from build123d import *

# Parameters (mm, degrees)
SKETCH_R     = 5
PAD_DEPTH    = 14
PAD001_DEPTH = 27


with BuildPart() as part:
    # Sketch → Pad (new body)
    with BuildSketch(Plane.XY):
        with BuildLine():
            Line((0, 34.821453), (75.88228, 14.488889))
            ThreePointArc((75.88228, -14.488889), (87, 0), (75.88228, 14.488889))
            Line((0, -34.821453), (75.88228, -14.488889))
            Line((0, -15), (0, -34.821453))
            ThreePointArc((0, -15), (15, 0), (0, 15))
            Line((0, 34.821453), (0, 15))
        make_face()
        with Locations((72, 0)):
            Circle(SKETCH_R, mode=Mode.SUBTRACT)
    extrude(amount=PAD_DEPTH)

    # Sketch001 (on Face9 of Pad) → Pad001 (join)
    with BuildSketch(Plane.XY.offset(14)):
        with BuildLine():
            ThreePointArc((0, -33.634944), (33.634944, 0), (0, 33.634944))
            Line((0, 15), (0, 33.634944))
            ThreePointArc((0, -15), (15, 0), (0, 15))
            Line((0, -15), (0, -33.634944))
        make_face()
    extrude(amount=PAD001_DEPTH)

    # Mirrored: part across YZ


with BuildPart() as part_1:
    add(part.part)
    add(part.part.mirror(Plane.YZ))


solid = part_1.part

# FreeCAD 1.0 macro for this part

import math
import FreeCAD as App
import Part
import Sketcher
from FreeCAD import Vector

doc = App.newDocument("Part")
params = doc.addObject("Spreadsheet::Sheet", "Params")
for row, (alias, value) in enumerate([
    ("sketch1_diameter", "10 mm"),
    ("sketch1_radius", "15 mm"),
    ("pad1_length", "14 mm"),
    ("sketch2_radius", "15 mm"),
    ("pad2_length", "27 mm"),
], start=1):
    params.set(f"A{row}", alias)
    params.set(f"B{row}", "=" + value)
    params.setAlias(f"B{row}", alias)

body = doc.addObject("PartDesign::Body", "Body")

sketch1 = body.newObject("Sketcher::SketchObject", "Sketch")
sketch1.AttachmentSupport = (doc.getObject("XY_Plane"), [""])
sketch1.MapMode = "FlatFace"
sketch1.addGeometry(Part.LineSegment(Vector(76, 14, 0), Vector(0, 35, 0)), False)
sketch1.addGeometry(Part.LineSegment(Vector(0, 35, 0), Vector(0, 15, 0)), False)
sketch1.addGeometry(Part.ArcOfCircle(Part.Circle(Vector(0, 0, 0), Vector(0, 0, 1), 15), math.radians(-90), math.radians(90)), False)
sketch1.addGeometry(Part.LineSegment(Vector(0, -15, 0), Vector(0, -35, 0)), False)
sketch1.addGeometry(Part.LineSegment(Vector(0, -35, 0), Vector(76, -14, 0)), False)
sketch1.addGeometry(Part.ArcOfCircle(Part.Circle(Vector(72, 0, 0), Vector(0, 0, 1), 15), math.radians(-75), math.radians(75)), False)
sketch1.addGeometry(Part.Circle(Vector(72, 0, 0), Vector(0, 0, 1), 5), False)
sketch1.addConstraint(Sketcher.Constraint("Coincident", 0, 2, 1, 1))
sketch1.addConstraint(Sketcher.Constraint("Coincident", 1, 2, 2, 2))
sketch1.addConstraint(Sketcher.Constraint("Coincident", 2, 1, 3, 1))
sketch1.addConstraint(Sketcher.Constraint("Coincident", 3, 2, 4, 1))
sketch1.addConstraint(Sketcher.Constraint("Tangent", 4, 2, 5, 1))
sketch1.addConstraint(Sketcher.Constraint("Tangent", 5, 2, 0, 1))
sketch1.addConstraint(Sketcher.Constraint("Vertical", 1))
sketch1.addConstraint(Sketcher.Constraint("Vertical", 3))
sketch1.addConstraint(Sketcher.Constraint("Coincident", 2, 3, -1, 1))
sketch1.addConstraint(Sketcher.Constraint("Coincident", 6, 3, 5, 3))
sketch1.addConstraint(Sketcher.Constraint("Equal", 2, 5))
sketch1.addConstraint(Sketcher.Constraint("Symmetric", 0, 2, 3, 2, -1, 1))
sketch1.addConstraint(Sketcher.Constraint("Symmetric", 4, 2, 5, 2, -1))
sketch1.addConstraint(Sketcher.Constraint("Diameter", 6, 10.0))
sketch1.addConstraint(Sketcher.Constraint("Radius", 2, 15.0))
sketch1.addConstraint(Sketcher.Constraint("DistanceX", -1, 1, 5, 3, 72.0))
sketch1.addConstraint(Sketcher.Constraint("Distance", 0, 78.559109))
sketch1.setExpression("Constraints[13]", "Params.sketch1_diameter")
sketch1.setExpression("Constraints[14]", "Params.sketch1_radius")
pad1 = body.newObject("PartDesign::Pad", "Pad")
pad1.Profile = sketch1
pad1.setExpression("Length", "Params.pad1_length")

sketch2 = body.newObject("Sketcher::SketchObject", "Sketch001")
sketch2.AttachmentSupport = (doc.getObject("XY_Plane"), [""])
sketch2.MapMode = "FlatFace"
sketch2.AttachmentOffset = App.Placement(Vector(0, 0, 14), App.Rotation())
sketch2.addGeometry(Part.ArcOfCircle(Part.Circle(Vector(0, 0, 0), Vector(0, 0, 1), 34), math.radians(-90), math.radians(90)), False)
sketch2.addGeometry(Part.LineSegment(Vector(0, 34, 0), Vector(0, 15, 0)), False)
sketch2.addGeometry(Part.ArcOfCircle(Part.Circle(Vector(0, 0, 0), Vector(0, 0, 1), 15), math.radians(-90), math.radians(90)), False)
sketch2.addGeometry(Part.LineSegment(Vector(0, -15, 0), Vector(0, -34, 0)), False)
sketch2.addConstraint(Sketcher.Constraint("Coincident", 0, 2, 1, 1))
sketch2.addConstraint(Sketcher.Constraint("Coincident", 1, 2, 2, 2))
sketch2.addConstraint(Sketcher.Constraint("Coincident", 2, 1, 3, 1))
sketch2.addConstraint(Sketcher.Constraint("Coincident", 3, 2, 0, 1))
sketch2.addConstraint(Sketcher.Constraint("Vertical", 1))
sketch2.addConstraint(Sketcher.Constraint("Vertical", 3))
sketch2.addConstraint(Sketcher.Constraint("Coincident", 0, 3, -1, 1))
sketch2.addConstraint(Sketcher.Constraint("Coincident", 2, 3, -1, 1))
sketch2.addConstraint(Sketcher.Constraint("PointOnObject", 0, 2, -2))
sketch2.addConstraint(Sketcher.Constraint("PointOnObject", 2, 1, -2))
sketch2.addConstraint(Sketcher.Constraint("Radius", 2, 15.0))
sketch2.addConstraint(Sketcher.Constraint("Radius", 0, 33.634944))
sketch2.setExpression("Constraints[10]", "Params.sketch2_radius")
pad2 = body.newObject("PartDesign::Pad", "Pad001")
pad2.Profile = sketch2
pad2.setExpression("Length", "Params.pad2_length")
body2 = doc.addObject("PartDesign::Body", "Body001")
doc.recompute()

body2.BaseFeature = body
doc.recompute()

mirroring = doc.addObject("Part::Mirroring", "Mirroring")
mirroring.Source = body
mirroring.Base = Vector(0, 0, 0)
mirroring.Normal = Vector(1, 0, 0)
body3 = doc.addObject("PartDesign::Body", "Body002")
body3.BaseFeature = mirroring
boolean = body2.newObject("PartDesign::Boolean", "Boolean")
boolean.Type = "Fuse"
boolean.addObjects([body3])
doc.recompute()
mirroring.Visibility = False

doc.recompute()
